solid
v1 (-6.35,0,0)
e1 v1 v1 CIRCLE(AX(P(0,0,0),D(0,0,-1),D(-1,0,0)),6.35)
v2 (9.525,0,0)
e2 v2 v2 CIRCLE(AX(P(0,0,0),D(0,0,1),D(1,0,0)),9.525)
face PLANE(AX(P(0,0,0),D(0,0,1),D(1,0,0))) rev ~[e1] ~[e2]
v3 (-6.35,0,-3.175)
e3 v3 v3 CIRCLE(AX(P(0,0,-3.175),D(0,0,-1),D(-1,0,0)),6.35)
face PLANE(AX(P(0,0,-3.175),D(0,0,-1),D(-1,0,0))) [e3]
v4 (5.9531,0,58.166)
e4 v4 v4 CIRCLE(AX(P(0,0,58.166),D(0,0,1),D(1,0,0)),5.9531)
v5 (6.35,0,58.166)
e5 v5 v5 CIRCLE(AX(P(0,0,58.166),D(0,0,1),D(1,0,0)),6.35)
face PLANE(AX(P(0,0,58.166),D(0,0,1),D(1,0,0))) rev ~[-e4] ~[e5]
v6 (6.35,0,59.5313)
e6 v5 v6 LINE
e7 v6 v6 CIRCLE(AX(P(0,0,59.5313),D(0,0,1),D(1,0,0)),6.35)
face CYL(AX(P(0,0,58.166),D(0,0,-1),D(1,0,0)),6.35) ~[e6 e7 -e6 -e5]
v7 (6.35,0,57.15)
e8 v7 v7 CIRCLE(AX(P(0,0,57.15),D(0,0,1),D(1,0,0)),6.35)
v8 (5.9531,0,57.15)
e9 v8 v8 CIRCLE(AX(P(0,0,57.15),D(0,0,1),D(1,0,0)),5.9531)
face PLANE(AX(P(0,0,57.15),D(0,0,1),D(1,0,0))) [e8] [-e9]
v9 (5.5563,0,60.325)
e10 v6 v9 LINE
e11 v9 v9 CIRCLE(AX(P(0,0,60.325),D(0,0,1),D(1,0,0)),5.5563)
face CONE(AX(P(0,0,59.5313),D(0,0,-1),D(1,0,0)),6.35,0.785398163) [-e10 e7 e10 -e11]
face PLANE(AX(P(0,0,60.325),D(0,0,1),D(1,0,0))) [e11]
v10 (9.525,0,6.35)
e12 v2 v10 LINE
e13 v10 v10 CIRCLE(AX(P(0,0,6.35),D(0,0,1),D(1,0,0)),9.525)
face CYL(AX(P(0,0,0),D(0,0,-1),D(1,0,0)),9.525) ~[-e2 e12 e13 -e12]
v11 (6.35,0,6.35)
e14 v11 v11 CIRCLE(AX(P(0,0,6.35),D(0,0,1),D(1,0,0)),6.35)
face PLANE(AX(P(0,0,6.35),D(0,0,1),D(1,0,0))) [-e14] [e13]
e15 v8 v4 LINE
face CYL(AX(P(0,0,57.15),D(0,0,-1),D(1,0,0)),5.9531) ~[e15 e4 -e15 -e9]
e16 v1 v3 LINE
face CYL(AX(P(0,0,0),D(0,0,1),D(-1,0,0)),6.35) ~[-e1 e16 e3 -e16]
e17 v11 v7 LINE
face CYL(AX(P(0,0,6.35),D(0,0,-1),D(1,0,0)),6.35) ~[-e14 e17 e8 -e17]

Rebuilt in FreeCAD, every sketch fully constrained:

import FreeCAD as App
import Part
import Sketcher
from FreeCAD import Vector
Q = App.Units.Quantity


def edges_at(feature, points):
    """Names of the edges that pass closest to the given points."""
    edges = feature.Shape.Edges
    near = lambda p: min(range(len(edges)), key=lambda i: edges[i].distToShape(Part.Vertex(*p))[0])
    return sorted({f"Edge{near(p) + 1}" for p in points})

doc = App.newDocument("Part")
body = doc.addObject("PartDesign::Body", "Body")

# Sketch on XY plane
sketch1 = body.newObject("Sketcher::SketchObject", "Sketch")
sketch1.AttachmentSupport = (doc.getObject("XY_Plane"), [""])
sketch1.MapMode = "FlatFace"
sketch1.addGeometry(Part.Circle(Vector(0, 0, 0), Vector(0, 0, 1), 10), False)
sketch1.addConstraint([
    Sketcher.Constraint("Coincident", 0, 3, -1, 1),
    Sketcher.Constraint("Diameter", 0, Q("0.75 in")),
])
pad1 = body.newObject("PartDesign::Pad", "Pad")
pad1.Profile = sketch1
pad1.Length = Q("0.25 in")

# Sketch on XY plane
sketch2 = body.newObject("Sketcher::SketchObject", "Sketch001")
sketch2.AttachmentSupport = (doc.getObject("XY_Plane"), [""])
sketch2.MapMode = "FlatFace"
sketch2.AttachmentOffset = App.Placement(Vector(0, 0, 0.25 * 25.4), App.Rotation())
sketch2.addGeometry(Part.Circle(Vector(0, 0, 0), Vector(0, 0, 1), 6), False)
sketch2.addConstraint([
    Sketcher.Constraint("Coincident", 0, 3, -1, 1),
    Sketcher.Constraint("Diameter", 0, Q("0.5 in")),
])
pad2 = body.newObject("PartDesign::Pad", "Pad001")
pad2.Profile = sketch2
pad2.Length = Q("2 in")

# Sketch on XY plane
sketch3 = body.newObject("Sketcher::SketchObject", "Sketch002")
sketch3.AttachmentSupport = (doc.getObject("XY_Plane"), [""])
sketch3.MapMode = "FlatFace"
sketch3.AttachmentOffset = App.Placement(Vector(0, 0, 2.25 * 25.4), App.Rotation())
sketch3.addGeometry(Part.Circle(Vector(0, 0, 0), Vector(0, 0, 1), 6), False)
sketch3.addConstraint([
    Sketcher.Constraint("Coincident", 0, 3, -1, 1),
    Sketcher.Constraint("Diameter", 0, Q("0.468748 in")),
])
pad3 = body.newObject("PartDesign::Pad", "Pad002")
pad3.Profile = sketch3
pad3.Length = Q("0.04 in")

# Sketch on XY plane
sketch4 = body.newObject("Sketcher::SketchObject", "Sketch003")
sketch4.AttachmentSupport = (doc.getObject("XY_Plane"), [""])
sketch4.MapMode = "FlatFace"
sketch4.AttachmentOffset = App.Placement(Vector(0, 0, 2.29 * 25.4), App.Rotation())
sketch4.addGeometry(Part.Circle(Vector(0, 0, 0), Vector(0, 0, 1), 6), False)
sketch4.addConstraint([
    Sketcher.Constraint("Coincident", 0, 3, -1, 1),
    Sketcher.Constraint("Diameter", 0, Q("0.5 in")),
])
pad4 = body.newObject("PartDesign::Pad", "Pad003")
pad4.Profile = sketch4
pad4.Length = Q("0.085 in")
doc.recompute()

chamfer = body.newObject("PartDesign::Chamfer", "Chamfer")
chamfer.Base = (pad4, edges_at(pad4, [(-6.35, 0, 60.325)]))
chamfer.Size = Q("0.031248 in")

# Sketch on XY plane
sketch5 = body.newObject("Sketcher::SketchObject", "Sketch004")
sketch5.AttachmentSupport = (doc.getObject("XY_Plane"), [""])
sketch5.MapMode = "FlatFace"
sketch5.addGeometry(Part.Circle(Vector(0, 0, 0), Vector(0, 0, 1), 6), False)
sketch5.addConstraint([
    Sketcher.Constraint("Coincident", 0, 3, -1, 1),
    Sketcher.Constraint("Diameter", 0, Q("0.5 in")),
])
pad5 = body.newObject("PartDesign::Pad", "Pad004")
pad5.Profile = sketch5
pad5.Length = Q("0.125 in")
pad5.Reversed = True

doc.recompute()
